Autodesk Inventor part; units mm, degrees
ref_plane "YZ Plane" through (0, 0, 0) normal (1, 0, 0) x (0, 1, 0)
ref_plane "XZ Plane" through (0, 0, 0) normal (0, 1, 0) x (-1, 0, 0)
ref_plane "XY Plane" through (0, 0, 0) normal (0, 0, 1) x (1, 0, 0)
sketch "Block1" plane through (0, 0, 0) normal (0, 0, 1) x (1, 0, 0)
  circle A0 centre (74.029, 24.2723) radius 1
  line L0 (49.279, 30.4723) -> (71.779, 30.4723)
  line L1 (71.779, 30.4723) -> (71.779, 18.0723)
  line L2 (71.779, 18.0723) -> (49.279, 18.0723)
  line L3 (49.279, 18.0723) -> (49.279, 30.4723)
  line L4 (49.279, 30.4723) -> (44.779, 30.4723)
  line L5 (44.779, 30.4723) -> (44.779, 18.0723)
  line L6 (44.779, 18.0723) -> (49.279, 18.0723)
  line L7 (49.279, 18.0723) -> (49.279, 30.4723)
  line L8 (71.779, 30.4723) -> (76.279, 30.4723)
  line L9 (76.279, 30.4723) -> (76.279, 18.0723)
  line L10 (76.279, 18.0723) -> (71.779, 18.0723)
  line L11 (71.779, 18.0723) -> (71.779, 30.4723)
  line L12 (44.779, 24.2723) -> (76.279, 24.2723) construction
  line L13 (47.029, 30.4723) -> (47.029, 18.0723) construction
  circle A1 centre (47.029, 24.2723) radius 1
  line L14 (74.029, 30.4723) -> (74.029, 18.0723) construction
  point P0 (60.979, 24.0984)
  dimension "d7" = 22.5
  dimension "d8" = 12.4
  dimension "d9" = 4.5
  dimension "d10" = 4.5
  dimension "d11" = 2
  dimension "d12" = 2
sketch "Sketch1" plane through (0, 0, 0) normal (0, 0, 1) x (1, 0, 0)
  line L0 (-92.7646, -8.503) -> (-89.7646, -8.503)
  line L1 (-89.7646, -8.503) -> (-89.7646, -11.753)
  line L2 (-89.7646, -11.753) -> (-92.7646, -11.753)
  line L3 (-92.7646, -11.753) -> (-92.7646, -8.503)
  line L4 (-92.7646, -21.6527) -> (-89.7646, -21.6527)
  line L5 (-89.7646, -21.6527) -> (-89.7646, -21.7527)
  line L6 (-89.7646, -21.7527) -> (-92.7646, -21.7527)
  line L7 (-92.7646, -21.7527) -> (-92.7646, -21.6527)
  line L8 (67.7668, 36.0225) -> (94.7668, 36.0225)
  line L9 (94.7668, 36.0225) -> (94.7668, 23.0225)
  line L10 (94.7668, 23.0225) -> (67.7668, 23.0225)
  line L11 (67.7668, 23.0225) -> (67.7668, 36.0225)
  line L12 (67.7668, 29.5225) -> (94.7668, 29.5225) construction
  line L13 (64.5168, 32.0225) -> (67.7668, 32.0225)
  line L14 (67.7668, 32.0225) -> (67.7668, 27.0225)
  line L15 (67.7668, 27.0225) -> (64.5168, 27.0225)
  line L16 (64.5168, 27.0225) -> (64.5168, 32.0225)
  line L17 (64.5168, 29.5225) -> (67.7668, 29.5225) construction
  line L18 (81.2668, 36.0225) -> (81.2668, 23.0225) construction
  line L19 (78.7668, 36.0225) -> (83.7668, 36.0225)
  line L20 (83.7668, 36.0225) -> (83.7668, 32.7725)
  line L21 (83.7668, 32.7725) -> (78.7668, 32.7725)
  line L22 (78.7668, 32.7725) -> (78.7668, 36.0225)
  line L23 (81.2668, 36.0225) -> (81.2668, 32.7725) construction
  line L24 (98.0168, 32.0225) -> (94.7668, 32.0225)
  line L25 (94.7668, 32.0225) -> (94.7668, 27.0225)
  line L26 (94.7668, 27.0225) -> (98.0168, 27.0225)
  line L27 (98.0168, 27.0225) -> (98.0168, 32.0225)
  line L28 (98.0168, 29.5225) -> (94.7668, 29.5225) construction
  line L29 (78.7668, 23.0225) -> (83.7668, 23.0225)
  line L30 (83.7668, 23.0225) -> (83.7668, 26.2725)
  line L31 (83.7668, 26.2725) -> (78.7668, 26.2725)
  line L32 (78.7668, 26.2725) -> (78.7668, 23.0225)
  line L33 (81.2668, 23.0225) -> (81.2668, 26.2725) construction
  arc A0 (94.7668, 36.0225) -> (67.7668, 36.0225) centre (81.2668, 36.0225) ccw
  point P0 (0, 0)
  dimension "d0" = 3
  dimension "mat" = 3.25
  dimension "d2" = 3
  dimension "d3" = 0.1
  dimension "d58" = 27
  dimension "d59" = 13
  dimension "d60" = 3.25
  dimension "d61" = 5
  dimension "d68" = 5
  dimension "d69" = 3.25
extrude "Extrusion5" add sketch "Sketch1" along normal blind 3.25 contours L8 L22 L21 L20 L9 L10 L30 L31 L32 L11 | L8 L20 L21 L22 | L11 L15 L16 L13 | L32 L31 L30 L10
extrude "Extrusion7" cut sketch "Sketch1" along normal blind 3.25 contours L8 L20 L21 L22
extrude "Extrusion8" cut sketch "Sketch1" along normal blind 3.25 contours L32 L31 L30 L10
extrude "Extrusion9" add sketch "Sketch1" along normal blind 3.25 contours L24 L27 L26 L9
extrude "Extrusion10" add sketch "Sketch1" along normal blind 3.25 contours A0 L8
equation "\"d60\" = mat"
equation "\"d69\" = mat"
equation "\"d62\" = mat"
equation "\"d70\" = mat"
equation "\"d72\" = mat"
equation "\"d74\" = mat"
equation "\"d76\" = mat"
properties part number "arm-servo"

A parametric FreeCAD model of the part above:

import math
import FreeCAD as App
import Part
import Sketcher

V = App.Vector

doc = App.newDocument("Part")
body = doc.addObject("PartDesign::Body", "Body")

# Sketch on XY plane
sketch1 = body.newObject("Sketcher::SketchObject", "Sketch")
sketch1.AttachmentSupport = (doc.getObject("XY_Plane"), [""])
sketch1.MapMode = "FlatFace"
sketch1.addGeometry([
    Part.LineSegment(V(67.8, 36, 0), V(67.8, 32, 0)),  # 0
    Part.LineSegment(V(67.8, 32, 0), V(64.5, 32, 0)),  # 1
    Part.LineSegment(V(64.5, 32, 0), V(64.5, 27, 0)),  # 2
    Part.LineSegment(V(64.5, 27, 0), V(67.8, 27, 0)),  # 3
    Part.LineSegment(V(67.8, 27, 0), V(67.8, 23, 0)),  # 4
    Part.LineSegment(V(67.8, 23, 0), V(94.8, 23, 0)),  # 5
    Part.LineSegment(V(94.8, 23, 0), V(94.8, 36, 0)),  # 6
    Part.LineSegment(V(94.8, 36, 0), V(67.8, 36, 0)),  # 7
], False)
sketch1.addConstraint([
    Sketcher.Constraint("Coincident", 0, 2, 1, 1),
    Sketcher.Constraint("Coincident", 1, 2, 2, 1),
    Sketcher.Constraint("Coincident", 2, 2, 3, 1),
    Sketcher.Constraint("Coincident", 3, 2, 4, 1),
    Sketcher.Constraint("Coincident", 4, 2, 5, 1),
    Sketcher.Constraint("Coincident", 5, 2, 6, 1),
    Sketcher.Constraint("Coincident", 6, 2, 7, 1),
    Sketcher.Constraint("Coincident", 7, 2, 0, 1),
    Sketcher.Constraint("Vertical", 0),
    Sketcher.Constraint("Horizontal", 1),
    Sketcher.Constraint("Vertical", 2),
    Sketcher.Constraint("Horizontal", 3),
    Sketcher.Constraint("Vertical", 4),
    Sketcher.Constraint("Horizontal", 5),
    Sketcher.Constraint("Vertical", 6),
    Sketcher.Constraint("Horizontal", 7),
    Sketcher.Constraint("Vertical", 0, 2, 3, 2),
    Sketcher.Constraint("Equal", 0, 4),
    Sketcher.Constraint("DistanceX", 5, 1, 5, 2, 27.0),
    Sketcher.Constraint("DistanceY", 2, 2, 2, 1, 5.0),
    Sketcher.Constraint("DistanceY", 6, 1, 6, 2, 13.0),
    Sketcher.Constraint("DistanceX", 1, 2, 1, 1, 3.25),
    Sketcher.Constraint("DistanceX", -1, 1, 0, 2, 67.7668),
    Sketcher.Constraint("DistanceY", -1, 1, 0, 2, 32.0225),
])
pad1 = body.newObject("PartDesign::Pad", "Pad")
pad1.Profile = sketch1
pad1.Length = 3.25

# Sketch on XY plane
sketch2 = body.newObject("Sketcher::SketchObject", "Sketch001")
sketch2.AttachmentSupport = (doc.getObject("XY_Plane"), [""])
sketch2.MapMode = "FlatFace"
sketch2.addGeometry([
    Part.LineSegment(V(83.8, 36, 0), V(78.8, 36, 0)),
    Part.LineSegment(V(78.8, 36, 0), V(78.8, 32.8, 0)),
    Part.LineSegment(V(78.8, 32.8, 0), V(83.8, 32.8, 0)),
    Part.LineSegment(V(83.8, 32.8, 0), V(83.8, 36, 0)),
], False)
sketch2.addConstraint([
    Sketcher.Constraint("Coincident", 0, 2, 1, 1),
    Sketcher.Constraint("Coincident", 1, 2, 2, 1),
    Sketcher.Constraint("Coincident", 2, 2, 3, 1),
    Sketcher.Constraint("Coincident", 3, 2, 0, 1),
    Sketcher.Constraint("Horizontal", 0),
    Sketcher.Constraint("Vertical", 1),
    Sketcher.Constraint("Horizontal", 2),
    Sketcher.Constraint("Vertical", 3),
    Sketcher.Constraint("DistanceX", 0, 2, 0, 1, 5.0),
    Sketcher.Constraint("DistanceY", 1, 2, 1, 1, 3.25),
    Sketcher.Constraint("DistanceX", -1, 1, 0, 2, 78.7668),
    Sketcher.Constraint("DistanceY", -1, 1, 0, 2, 36.0225),
])
pocket1 = body.newObject("PartDesign::Pocket", "Pocket")
pocket1.Profile = sketch2
pocket1.Length = 3.25
pocket1.Reversed = True

# Sketch on XY plane
sketch3 = body.newObject("Sketcher::SketchObject", "Sketch002")
sketch3.AttachmentSupport = (doc.getObject("XY_Plane"), [""])
sketch3.MapMode = "FlatFace"
sketch3.addGeometry([
    Part.LineSegment(V(78.8, 26.3, 0), V(78.8, 23, 0)),
    Part.LineSegment(V(78.8, 23, 0), V(83.8, 23, 0)),
    Part.LineSegment(V(83.8, 23, 0), V(83.8, 26.3, 0)),
    Part.LineSegment(V(83.8, 26.3, 0), V(78.8, 26.3, 0)),
], False)
sketch3.addConstraint([
    Sketcher.Constraint("Coincident", 0, 2, 1, 1),
    Sketcher.Constraint("Coincident", 1, 2, 2, 1),
    Sketcher.Constraint("Coincident", 2, 2, 3, 1),
    Sketcher.Constraint("Coincident", 3, 2, 0, 1),
    Sketcher.Constraint("Vertical", 0),
    Sketcher.Constraint("Horizontal", 1),
    Sketcher.Constraint("Vertical", 2),
    Sketcher.Constraint("Horizontal", 3),
    Sketcher.Constraint("DistanceX", 1, 1, 1, 2, 5.0),
    Sketcher.Constraint("DistanceY", 0, 2, 0, 1, 3.25),
    Sketcher.Constraint("DistanceX", -1, 1, 0, 2, 78.7668),
    Sketcher.Constraint("DistanceY", -1, 1, 0, 2, 23.0225),
])
pocket2 = body.newObject("PartDesign::Pocket", "Pocket001")
pocket2.Profile = sketch3
pocket2.Length = 3.25
pocket2.Reversed = True

# Sketch on XY plane
sketch4 = body.newObject("Sketcher::SketchObject", "Sketch003")
sketch4.AttachmentSupport = (doc.getObject("XY_Plane"), [""])
sketch4.MapMode = "FlatFace"
sketch4.addGeometry([
    Part.LineSegment(V(98, 32, 0), V(94.8, 32, 0)),
    Part.LineSegment(V(94.8, 32, 0), V(94.8, 27, 0)),
    Part.LineSegment(V(94.8, 27, 0), V(98, 27, 0)),
    Part.LineSegment(V(98, 27, 0), V(98, 32, 0)),
], False)
sketch4.addConstraint([
    Sketcher.Constraint("Coincident", 0, 2, 1, 1),
    Sketcher.Constraint("Coincident", 1, 2, 2, 1),
    Sketcher.Constraint("Coincident", 2, 2, 3, 1),
    Sketcher.Constraint("Coincident", 3, 2, 0, 1),
    Sketcher.Constraint("Horizontal", 0),
    Sketcher.Constraint("Vertical", 1),
    Sketcher.Constraint("Horizontal", 2),
    Sketcher.Constraint("Vertical", 3),
    Sketcher.Constraint("DistanceY", 1, 2, 1, 1, 5.0),
    Sketcher.Constraint("DistanceX", 0, 2, 0, 1, 3.25),
    Sketcher.Constraint("DistanceX", -1, 1, 0, 2, 94.7668),
    Sketcher.Constraint("DistanceY", -1, 1, 0, 2, 32.0225),
])
pad2 = body.newObject("PartDesign::Pad", "Pad001")
pad2.Profile = sketch4
pad2.Length = 3.25

# Sketch on XY plane
sketch5 = body.newObject("Sketcher::SketchObject", "Sketch004")
sketch5.AttachmentSupport = (doc.getObject("XY_Plane"), [""])
sketch5.MapMode = "FlatFace"
sketch5.addGeometry([
    Part.ArcOfCircle(Part.Circle(V(81, 36, 0), V(0, 0, 1), 14), math.radians(0), math.radians(180)),
    Part.LineSegment(V(68, 36, 0), V(95, 36, 0)),
], False)
sketch5.addConstraint([
    Sketcher.Constraint("Coincident", 0, 1, 1, 2),
    Sketcher.Constraint("Coincident", 1, 1, 0, 2),
    Sketcher.Constraint("Horizontal", 1),
    Sketcher.Constraint("Radius", 0, 13.5),
    Sketcher.Constraint("DistanceX", -1, 1, 0, 3, 81.2668),
    Sketcher.Constraint("DistanceY", -1, 1, 0, 3, 36.0225),
    Sketcher.Constraint("DistanceY", -1, 1, 0, 1, 36.0225),
])
pad3 = body.newObject("PartDesign::Pad", "Pad002")
pad3.Profile = sketch5
pad3.Length = 3.25

doc.recompute()
